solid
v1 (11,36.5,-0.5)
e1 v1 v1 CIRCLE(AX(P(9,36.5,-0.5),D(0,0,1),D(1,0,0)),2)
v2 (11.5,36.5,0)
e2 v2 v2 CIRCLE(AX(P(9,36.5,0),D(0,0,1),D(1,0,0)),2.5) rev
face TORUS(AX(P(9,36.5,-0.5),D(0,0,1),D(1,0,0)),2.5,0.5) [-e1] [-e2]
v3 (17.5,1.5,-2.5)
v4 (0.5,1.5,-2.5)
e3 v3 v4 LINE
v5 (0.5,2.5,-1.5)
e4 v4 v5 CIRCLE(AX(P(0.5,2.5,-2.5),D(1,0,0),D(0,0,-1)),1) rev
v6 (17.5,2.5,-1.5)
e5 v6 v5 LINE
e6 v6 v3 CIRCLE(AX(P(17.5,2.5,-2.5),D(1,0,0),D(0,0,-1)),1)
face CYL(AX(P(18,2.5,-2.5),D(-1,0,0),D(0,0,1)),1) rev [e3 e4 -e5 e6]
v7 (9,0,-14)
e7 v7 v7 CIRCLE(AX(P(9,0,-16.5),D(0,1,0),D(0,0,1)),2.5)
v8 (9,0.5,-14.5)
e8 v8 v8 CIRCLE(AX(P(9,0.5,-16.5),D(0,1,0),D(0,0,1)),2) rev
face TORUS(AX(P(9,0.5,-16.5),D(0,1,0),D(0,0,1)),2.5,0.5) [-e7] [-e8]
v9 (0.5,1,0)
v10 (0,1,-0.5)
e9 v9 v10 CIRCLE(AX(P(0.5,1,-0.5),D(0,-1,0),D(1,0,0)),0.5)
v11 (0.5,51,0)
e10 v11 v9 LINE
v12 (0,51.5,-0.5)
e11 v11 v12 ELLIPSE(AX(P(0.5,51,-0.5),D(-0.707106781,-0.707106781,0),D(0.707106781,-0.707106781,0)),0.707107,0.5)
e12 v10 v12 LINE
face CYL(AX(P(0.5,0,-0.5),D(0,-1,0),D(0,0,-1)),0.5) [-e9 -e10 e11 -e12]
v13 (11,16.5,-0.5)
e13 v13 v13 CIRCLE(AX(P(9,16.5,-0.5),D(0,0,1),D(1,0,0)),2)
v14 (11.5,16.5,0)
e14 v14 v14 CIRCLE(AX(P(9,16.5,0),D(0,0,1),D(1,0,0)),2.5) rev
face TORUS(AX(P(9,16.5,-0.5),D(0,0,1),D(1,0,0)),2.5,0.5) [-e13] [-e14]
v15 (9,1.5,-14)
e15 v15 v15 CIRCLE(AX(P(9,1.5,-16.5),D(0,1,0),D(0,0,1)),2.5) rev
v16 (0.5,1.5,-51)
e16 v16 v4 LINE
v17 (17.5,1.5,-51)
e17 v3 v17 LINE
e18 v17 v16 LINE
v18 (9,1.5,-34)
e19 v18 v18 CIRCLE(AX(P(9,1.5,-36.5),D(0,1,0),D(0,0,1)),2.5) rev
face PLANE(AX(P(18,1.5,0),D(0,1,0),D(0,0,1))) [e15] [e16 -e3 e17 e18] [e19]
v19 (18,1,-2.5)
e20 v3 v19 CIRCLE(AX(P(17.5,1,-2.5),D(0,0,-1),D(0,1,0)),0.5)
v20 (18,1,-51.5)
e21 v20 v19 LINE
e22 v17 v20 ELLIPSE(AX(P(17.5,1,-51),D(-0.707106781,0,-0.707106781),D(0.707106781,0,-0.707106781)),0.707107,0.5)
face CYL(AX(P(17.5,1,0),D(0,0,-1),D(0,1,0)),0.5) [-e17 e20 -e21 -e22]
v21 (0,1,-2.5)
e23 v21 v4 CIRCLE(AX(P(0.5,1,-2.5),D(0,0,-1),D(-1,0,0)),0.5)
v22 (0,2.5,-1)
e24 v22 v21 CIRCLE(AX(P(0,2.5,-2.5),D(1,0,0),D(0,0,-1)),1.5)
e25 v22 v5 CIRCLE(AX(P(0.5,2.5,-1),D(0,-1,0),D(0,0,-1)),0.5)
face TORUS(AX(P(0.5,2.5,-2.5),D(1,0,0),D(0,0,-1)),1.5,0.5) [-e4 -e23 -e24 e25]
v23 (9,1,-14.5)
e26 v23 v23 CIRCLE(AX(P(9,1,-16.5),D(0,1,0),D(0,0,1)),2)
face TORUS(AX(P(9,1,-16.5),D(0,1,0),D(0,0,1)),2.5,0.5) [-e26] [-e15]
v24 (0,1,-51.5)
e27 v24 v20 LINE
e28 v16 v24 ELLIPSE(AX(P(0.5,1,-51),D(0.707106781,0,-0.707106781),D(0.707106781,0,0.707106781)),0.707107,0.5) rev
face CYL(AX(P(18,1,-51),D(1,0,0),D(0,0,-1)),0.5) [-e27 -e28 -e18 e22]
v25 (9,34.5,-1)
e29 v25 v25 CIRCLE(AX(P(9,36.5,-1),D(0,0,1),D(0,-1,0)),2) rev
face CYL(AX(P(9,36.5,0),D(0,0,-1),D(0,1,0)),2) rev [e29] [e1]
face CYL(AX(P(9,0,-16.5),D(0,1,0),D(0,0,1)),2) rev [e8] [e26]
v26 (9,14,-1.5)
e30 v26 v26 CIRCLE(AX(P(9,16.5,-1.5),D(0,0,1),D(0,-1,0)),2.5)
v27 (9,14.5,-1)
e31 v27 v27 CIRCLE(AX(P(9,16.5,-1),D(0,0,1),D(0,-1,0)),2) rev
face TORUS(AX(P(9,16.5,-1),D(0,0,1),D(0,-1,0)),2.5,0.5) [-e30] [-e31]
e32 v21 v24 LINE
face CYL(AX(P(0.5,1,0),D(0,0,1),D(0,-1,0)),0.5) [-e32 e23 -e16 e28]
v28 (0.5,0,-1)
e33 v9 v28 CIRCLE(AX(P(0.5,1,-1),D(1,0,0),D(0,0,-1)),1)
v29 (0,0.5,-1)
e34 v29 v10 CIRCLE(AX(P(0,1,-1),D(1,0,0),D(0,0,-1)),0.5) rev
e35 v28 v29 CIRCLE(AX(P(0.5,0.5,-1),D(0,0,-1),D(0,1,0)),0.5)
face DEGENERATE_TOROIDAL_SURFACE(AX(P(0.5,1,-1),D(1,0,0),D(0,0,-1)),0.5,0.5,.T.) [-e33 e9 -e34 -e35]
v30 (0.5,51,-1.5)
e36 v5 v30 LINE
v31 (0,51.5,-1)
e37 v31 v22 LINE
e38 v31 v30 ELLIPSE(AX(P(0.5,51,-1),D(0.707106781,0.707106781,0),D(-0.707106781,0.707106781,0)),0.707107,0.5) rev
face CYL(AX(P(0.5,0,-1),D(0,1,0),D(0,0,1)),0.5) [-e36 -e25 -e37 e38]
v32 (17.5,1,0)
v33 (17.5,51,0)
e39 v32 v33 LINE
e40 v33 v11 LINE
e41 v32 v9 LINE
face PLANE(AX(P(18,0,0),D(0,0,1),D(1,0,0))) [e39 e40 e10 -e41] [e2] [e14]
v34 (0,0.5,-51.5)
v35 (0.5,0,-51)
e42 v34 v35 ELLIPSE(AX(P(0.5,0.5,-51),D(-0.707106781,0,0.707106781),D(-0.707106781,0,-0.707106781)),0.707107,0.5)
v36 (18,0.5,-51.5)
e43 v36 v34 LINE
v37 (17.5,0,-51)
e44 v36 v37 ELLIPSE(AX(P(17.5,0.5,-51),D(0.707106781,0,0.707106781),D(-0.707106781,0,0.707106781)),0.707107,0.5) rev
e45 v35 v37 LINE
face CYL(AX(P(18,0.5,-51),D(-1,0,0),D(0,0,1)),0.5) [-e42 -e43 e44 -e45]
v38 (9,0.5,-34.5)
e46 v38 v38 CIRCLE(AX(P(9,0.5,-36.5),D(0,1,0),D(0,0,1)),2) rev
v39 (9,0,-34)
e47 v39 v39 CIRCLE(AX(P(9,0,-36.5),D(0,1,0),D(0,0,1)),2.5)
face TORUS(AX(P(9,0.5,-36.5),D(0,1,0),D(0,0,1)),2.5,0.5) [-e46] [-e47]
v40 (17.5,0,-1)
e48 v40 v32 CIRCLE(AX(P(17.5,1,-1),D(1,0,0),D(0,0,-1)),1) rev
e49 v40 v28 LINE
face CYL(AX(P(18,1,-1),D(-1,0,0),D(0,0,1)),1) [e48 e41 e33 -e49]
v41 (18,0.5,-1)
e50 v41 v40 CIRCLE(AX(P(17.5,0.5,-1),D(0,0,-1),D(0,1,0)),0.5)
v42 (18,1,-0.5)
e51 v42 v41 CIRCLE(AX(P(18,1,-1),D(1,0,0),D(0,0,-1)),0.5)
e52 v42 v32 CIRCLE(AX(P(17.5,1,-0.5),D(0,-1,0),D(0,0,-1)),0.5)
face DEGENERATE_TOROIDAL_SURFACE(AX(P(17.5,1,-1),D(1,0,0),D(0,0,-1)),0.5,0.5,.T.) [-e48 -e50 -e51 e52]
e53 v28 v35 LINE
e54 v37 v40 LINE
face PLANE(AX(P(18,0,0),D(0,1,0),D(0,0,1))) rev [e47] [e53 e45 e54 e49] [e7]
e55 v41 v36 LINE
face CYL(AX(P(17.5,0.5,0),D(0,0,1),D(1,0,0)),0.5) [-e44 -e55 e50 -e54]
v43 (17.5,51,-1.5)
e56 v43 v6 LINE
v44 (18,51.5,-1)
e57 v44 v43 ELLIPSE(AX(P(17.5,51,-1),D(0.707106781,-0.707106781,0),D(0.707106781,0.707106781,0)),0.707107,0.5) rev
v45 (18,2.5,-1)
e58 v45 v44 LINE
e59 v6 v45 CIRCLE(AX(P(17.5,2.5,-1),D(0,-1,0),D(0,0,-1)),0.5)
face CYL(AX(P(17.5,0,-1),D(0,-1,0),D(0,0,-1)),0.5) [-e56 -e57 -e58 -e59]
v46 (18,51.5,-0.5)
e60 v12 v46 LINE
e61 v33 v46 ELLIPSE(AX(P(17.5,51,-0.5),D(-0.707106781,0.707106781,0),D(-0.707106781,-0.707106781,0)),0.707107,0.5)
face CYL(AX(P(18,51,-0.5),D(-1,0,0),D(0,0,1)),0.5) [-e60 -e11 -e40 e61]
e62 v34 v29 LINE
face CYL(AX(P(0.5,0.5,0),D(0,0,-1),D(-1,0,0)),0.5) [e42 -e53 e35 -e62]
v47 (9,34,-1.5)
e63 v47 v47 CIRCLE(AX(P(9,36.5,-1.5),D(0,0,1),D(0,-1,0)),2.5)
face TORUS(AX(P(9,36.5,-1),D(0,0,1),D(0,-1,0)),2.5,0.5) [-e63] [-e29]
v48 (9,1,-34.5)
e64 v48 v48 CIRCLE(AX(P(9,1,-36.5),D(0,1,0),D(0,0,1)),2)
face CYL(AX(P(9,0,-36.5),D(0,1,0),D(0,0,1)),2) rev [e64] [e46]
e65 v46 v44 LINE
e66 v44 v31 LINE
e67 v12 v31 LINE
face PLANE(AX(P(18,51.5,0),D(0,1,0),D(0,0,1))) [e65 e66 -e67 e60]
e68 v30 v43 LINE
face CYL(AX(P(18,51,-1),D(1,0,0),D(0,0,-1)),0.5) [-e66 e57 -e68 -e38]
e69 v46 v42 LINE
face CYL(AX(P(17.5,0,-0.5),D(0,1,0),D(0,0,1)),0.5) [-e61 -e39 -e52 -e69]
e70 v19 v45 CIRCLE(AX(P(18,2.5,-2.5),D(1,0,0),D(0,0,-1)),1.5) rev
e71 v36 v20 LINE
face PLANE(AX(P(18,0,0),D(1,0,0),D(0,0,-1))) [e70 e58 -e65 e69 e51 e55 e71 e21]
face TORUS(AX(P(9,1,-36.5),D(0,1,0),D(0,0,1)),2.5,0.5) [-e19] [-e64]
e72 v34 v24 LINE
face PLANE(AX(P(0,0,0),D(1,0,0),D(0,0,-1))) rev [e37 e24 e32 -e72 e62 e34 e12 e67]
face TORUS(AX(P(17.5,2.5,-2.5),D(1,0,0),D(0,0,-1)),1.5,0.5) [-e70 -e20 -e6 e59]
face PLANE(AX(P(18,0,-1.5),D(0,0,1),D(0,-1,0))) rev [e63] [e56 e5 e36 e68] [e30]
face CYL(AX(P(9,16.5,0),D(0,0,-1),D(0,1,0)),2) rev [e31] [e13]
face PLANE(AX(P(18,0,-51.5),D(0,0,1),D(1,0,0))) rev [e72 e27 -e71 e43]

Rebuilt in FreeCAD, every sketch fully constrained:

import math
import FreeCAD as App
import Part
import Sketcher


def edges_at(feature, points):
    """Names of the edges that pass closest to the given points."""
    edges = feature.Shape.Edges
    near = lambda p: min(range(len(edges)), key=lambda i: edges[i].distToShape(Part.Vertex(*p))[0])
    return sorted({f"Edge{near(p) + 1}" for p in points})

doc = App.newDocument("Part")
body = doc.addObject("PartDesign::Body", "Body")

sketch1 = body.newObject("Sketcher::SketchObject", "Sketch")
sketch1.AttachmentSupport = (doc.getObject("YZ_Plane"), [""])
sketch1.MapMode = "FlatFace"
sketch1.addGeometry(Part.ArcOfCircle(Part.Circle(App.Vector(1, -1, 0), App.Vector(0, 0, 1), 1), math.radians(90), math.radians(180)), False)
sketch1.addGeometry(Part.LineSegment(App.Vector(0, -1, 0), App.Vector(0, -51.5, 0)), False)
sketch1.addGeometry(Part.LineSegment(App.Vector(0, -51.5, 0), App.Vector(1.5, -51.5, 0)), False)
sketch1.addGeometry(Part.LineSegment(App.Vector(1.5, -51.5, 0), App.Vector(1.5, -2.5, 0)), False)
sketch1.addGeometry(Part.ArcOfCircle(Part.Circle(App.Vector(2.5, -2.5, 0), App.Vector(0, 0, 1), 1), math.radians(90), math.radians(180)), False)
sketch1.addGeometry(Part.LineSegment(App.Vector(2.5, -1.5, 0), App.Vector(51.5, -1.5, 0)), False)
sketch1.addGeometry(Part.LineSegment(App.Vector(51.5, -1.5, 0), App.Vector(51.5, 0, 0)), False)
sketch1.addGeometry(Part.LineSegment(App.Vector(51.5, 0, 0), App.Vector(1, 0, 0)), False)
sketch1.addConstraint(Sketcher.Constraint("Tangent", 0, 2, 1, 1))
sketch1.addConstraint(Sketcher.Constraint("Coincident", 1, 2, 2, 1))
sketch1.addConstraint(Sketcher.Constraint("Coincident", 2, 2, 3, 1))
sketch1.addConstraint(Sketcher.Constraint("Tangent", 3, 2, 4, 2))
sketch1.addConstraint(Sketcher.Constraint("Tangent", 4, 1, 5, 1))
sketch1.addConstraint(Sketcher.Constraint("Coincident", 5, 2, 6, 1))
sketch1.addConstraint(Sketcher.Constraint("Coincident", 6, 2, 7, 1))
sketch1.addConstraint(Sketcher.Constraint("Tangent", 7, 2, 0, 1))
sketch1.addConstraint(Sketcher.Constraint("Vertical", 1))
sketch1.addConstraint(Sketcher.Constraint("Horizontal", 2))
sketch1.addConstraint(Sketcher.Constraint("Vertical", 3))
sketch1.addConstraint(Sketcher.Constraint("Horizontal", 5))
sketch1.addConstraint(Sketcher.Constraint("Vertical", 6))
sketch1.addConstraint(Sketcher.Constraint("Horizontal", 7))
sketch1.addConstraint(Sketcher.Constraint("Equal", 0, 4))
sketch1.addConstraint(Sketcher.Constraint("PointOnObject", 0, 2, -2))
sketch1.addConstraint(Sketcher.Constraint("PointOnObject", 6, 2, -1))
sketch1.addConstraint(Sketcher.Constraint("Equal", 7, 1))
sketch1.addConstraint(Sketcher.Constraint("Equal", 5, 3))
sketch1.addConstraint(Sketcher.Constraint("Radius", 0, 1.0))
sketch1.addConstraint(Sketcher.Constraint("DistanceX", 5, 1, 5, 2, 49.0))
sketch1.addConstraint(Sketcher.Constraint("DistanceX", 2, 1, 2, 2, 1.5))
pad1 = body.newObject("PartDesign::Pad", "Pad")
pad1.Profile = sketch1
pad1.Length = 18

sketch2 = body.newObject("Sketcher::SketchObject", "Sketch001")
sketch2.AttachmentSupport = (doc.getObject("XZ_Plane"), [""])
sketch2.MapMode = "FlatFace"
sketch2.AttachmentOffset = App.Placement(App.Vector(0, 0, -1.5), App.Rotation())
sketch2.addGeometry(Part.Circle(App.Vector(9, -16.5, 0), App.Vector(0, 0, 1), 2), False)
sketch2.addGeometry(Part.Circle(App.Vector(9, -36.5, 0), App.Vector(0, 0, 1), 2), False)
sketch2.addConstraint(Sketcher.Constraint("Equal", 0, 1))
sketch2.addConstraint(Sketcher.Constraint("Vertical", 0, 3, 1, 3))
sketch2.addConstraint(Sketcher.Constraint("Diameter", 0, 4.0))
sketch2.addConstraint(Sketcher.Constraint("DistanceX", -1, 1, 0, 3, 9.0))
sketch2.addConstraint(Sketcher.Constraint("DistanceY", 1, 3, 0, 3, 20.0))
sketch2.addConstraint(Sketcher.Constraint("DistanceY", 0, 3, -1, 1, 16.5))
pocket1 = body.newObject("PartDesign::Pocket", "Pocket")
pocket1.Profile = sketch2
pocket1.Type = "ThroughAll"
pocket1.Reversed = True

sketch3 = body.newObject("Sketcher::SketchObject", "Sketch002")
sketch3.AttachmentSupport = (doc.getObject("XY_Plane"), [""])
sketch3.MapMode = "FlatFace"
sketch3.AttachmentOffset = App.Placement(App.Vector(0, 0, -1.5), App.Rotation())
sketch3.addGeometry(Part.Circle(App.Vector(9, 16.5, 0), App.Vector(0, 0, 1), 2), False)
sketch3.addGeometry(Part.Circle(App.Vector(9, 36.5, 0), App.Vector(0, 0, 1), 2), False)
sketch3.addConstraint(Sketcher.Constraint("Equal", 0, 1))
sketch3.addConstraint(Sketcher.Constraint("Vertical", 0, 3, 1, 3))
sketch3.addConstraint(Sketcher.Constraint("Diameter", 0, 4.0))
sketch3.addConstraint(Sketcher.Constraint("DistanceX", -1, 1, 0, 3, 9.0))
sketch3.addConstraint(Sketcher.Constraint("DistanceY", 0, 3, 1, 3, 20.0))
sketch3.addConstraint(Sketcher.Constraint("DistanceY", -1, 1, 0, 3, 16.5))
pocket2 = body.newObject("PartDesign::Pocket", "Pocket001")
pocket2.Profile = sketch3
pocket2.Type = "ThroughAll"
pocket2.Reversed = True
doc.recompute()

fillet = body.newObject("PartDesign::Fillet", "Fillet")
fillet.Base = (pocket2, edges_at(pocket2, [
    (0, 27, -1.5),
    (0, 1.793, -1.793),
    (0, 1.5, -27),
    (0, 0, -26.25),
    (0, 0.293, -0.293),
    (9, 51.5, 0),
    (9, 51.5, -1.5),
    (9, 1.5, -51.5),
    (9, 0, -51.5),
    (18, 1.5, -27),
    (18, 1.793, -1.793),
    (18, 27, -1.5),
    (7, 0, -16.5),
    (7, 1.5, -16.5),
    (7, 0, -36.5),
    (7, 1.5, -36.5),
    (18, 26.25, 0),
    (11, 16.5, 0),
    (11, 16.5, -1.5),
    (11, 36.5, 0),
    (11, 36.5, -1.5),
    (18, 0.293, -0.293),
    (18, 0, -26.25),
    (0, 26.25, 0),
]))
fillet.Radius = 0.5

doc.recompute()
